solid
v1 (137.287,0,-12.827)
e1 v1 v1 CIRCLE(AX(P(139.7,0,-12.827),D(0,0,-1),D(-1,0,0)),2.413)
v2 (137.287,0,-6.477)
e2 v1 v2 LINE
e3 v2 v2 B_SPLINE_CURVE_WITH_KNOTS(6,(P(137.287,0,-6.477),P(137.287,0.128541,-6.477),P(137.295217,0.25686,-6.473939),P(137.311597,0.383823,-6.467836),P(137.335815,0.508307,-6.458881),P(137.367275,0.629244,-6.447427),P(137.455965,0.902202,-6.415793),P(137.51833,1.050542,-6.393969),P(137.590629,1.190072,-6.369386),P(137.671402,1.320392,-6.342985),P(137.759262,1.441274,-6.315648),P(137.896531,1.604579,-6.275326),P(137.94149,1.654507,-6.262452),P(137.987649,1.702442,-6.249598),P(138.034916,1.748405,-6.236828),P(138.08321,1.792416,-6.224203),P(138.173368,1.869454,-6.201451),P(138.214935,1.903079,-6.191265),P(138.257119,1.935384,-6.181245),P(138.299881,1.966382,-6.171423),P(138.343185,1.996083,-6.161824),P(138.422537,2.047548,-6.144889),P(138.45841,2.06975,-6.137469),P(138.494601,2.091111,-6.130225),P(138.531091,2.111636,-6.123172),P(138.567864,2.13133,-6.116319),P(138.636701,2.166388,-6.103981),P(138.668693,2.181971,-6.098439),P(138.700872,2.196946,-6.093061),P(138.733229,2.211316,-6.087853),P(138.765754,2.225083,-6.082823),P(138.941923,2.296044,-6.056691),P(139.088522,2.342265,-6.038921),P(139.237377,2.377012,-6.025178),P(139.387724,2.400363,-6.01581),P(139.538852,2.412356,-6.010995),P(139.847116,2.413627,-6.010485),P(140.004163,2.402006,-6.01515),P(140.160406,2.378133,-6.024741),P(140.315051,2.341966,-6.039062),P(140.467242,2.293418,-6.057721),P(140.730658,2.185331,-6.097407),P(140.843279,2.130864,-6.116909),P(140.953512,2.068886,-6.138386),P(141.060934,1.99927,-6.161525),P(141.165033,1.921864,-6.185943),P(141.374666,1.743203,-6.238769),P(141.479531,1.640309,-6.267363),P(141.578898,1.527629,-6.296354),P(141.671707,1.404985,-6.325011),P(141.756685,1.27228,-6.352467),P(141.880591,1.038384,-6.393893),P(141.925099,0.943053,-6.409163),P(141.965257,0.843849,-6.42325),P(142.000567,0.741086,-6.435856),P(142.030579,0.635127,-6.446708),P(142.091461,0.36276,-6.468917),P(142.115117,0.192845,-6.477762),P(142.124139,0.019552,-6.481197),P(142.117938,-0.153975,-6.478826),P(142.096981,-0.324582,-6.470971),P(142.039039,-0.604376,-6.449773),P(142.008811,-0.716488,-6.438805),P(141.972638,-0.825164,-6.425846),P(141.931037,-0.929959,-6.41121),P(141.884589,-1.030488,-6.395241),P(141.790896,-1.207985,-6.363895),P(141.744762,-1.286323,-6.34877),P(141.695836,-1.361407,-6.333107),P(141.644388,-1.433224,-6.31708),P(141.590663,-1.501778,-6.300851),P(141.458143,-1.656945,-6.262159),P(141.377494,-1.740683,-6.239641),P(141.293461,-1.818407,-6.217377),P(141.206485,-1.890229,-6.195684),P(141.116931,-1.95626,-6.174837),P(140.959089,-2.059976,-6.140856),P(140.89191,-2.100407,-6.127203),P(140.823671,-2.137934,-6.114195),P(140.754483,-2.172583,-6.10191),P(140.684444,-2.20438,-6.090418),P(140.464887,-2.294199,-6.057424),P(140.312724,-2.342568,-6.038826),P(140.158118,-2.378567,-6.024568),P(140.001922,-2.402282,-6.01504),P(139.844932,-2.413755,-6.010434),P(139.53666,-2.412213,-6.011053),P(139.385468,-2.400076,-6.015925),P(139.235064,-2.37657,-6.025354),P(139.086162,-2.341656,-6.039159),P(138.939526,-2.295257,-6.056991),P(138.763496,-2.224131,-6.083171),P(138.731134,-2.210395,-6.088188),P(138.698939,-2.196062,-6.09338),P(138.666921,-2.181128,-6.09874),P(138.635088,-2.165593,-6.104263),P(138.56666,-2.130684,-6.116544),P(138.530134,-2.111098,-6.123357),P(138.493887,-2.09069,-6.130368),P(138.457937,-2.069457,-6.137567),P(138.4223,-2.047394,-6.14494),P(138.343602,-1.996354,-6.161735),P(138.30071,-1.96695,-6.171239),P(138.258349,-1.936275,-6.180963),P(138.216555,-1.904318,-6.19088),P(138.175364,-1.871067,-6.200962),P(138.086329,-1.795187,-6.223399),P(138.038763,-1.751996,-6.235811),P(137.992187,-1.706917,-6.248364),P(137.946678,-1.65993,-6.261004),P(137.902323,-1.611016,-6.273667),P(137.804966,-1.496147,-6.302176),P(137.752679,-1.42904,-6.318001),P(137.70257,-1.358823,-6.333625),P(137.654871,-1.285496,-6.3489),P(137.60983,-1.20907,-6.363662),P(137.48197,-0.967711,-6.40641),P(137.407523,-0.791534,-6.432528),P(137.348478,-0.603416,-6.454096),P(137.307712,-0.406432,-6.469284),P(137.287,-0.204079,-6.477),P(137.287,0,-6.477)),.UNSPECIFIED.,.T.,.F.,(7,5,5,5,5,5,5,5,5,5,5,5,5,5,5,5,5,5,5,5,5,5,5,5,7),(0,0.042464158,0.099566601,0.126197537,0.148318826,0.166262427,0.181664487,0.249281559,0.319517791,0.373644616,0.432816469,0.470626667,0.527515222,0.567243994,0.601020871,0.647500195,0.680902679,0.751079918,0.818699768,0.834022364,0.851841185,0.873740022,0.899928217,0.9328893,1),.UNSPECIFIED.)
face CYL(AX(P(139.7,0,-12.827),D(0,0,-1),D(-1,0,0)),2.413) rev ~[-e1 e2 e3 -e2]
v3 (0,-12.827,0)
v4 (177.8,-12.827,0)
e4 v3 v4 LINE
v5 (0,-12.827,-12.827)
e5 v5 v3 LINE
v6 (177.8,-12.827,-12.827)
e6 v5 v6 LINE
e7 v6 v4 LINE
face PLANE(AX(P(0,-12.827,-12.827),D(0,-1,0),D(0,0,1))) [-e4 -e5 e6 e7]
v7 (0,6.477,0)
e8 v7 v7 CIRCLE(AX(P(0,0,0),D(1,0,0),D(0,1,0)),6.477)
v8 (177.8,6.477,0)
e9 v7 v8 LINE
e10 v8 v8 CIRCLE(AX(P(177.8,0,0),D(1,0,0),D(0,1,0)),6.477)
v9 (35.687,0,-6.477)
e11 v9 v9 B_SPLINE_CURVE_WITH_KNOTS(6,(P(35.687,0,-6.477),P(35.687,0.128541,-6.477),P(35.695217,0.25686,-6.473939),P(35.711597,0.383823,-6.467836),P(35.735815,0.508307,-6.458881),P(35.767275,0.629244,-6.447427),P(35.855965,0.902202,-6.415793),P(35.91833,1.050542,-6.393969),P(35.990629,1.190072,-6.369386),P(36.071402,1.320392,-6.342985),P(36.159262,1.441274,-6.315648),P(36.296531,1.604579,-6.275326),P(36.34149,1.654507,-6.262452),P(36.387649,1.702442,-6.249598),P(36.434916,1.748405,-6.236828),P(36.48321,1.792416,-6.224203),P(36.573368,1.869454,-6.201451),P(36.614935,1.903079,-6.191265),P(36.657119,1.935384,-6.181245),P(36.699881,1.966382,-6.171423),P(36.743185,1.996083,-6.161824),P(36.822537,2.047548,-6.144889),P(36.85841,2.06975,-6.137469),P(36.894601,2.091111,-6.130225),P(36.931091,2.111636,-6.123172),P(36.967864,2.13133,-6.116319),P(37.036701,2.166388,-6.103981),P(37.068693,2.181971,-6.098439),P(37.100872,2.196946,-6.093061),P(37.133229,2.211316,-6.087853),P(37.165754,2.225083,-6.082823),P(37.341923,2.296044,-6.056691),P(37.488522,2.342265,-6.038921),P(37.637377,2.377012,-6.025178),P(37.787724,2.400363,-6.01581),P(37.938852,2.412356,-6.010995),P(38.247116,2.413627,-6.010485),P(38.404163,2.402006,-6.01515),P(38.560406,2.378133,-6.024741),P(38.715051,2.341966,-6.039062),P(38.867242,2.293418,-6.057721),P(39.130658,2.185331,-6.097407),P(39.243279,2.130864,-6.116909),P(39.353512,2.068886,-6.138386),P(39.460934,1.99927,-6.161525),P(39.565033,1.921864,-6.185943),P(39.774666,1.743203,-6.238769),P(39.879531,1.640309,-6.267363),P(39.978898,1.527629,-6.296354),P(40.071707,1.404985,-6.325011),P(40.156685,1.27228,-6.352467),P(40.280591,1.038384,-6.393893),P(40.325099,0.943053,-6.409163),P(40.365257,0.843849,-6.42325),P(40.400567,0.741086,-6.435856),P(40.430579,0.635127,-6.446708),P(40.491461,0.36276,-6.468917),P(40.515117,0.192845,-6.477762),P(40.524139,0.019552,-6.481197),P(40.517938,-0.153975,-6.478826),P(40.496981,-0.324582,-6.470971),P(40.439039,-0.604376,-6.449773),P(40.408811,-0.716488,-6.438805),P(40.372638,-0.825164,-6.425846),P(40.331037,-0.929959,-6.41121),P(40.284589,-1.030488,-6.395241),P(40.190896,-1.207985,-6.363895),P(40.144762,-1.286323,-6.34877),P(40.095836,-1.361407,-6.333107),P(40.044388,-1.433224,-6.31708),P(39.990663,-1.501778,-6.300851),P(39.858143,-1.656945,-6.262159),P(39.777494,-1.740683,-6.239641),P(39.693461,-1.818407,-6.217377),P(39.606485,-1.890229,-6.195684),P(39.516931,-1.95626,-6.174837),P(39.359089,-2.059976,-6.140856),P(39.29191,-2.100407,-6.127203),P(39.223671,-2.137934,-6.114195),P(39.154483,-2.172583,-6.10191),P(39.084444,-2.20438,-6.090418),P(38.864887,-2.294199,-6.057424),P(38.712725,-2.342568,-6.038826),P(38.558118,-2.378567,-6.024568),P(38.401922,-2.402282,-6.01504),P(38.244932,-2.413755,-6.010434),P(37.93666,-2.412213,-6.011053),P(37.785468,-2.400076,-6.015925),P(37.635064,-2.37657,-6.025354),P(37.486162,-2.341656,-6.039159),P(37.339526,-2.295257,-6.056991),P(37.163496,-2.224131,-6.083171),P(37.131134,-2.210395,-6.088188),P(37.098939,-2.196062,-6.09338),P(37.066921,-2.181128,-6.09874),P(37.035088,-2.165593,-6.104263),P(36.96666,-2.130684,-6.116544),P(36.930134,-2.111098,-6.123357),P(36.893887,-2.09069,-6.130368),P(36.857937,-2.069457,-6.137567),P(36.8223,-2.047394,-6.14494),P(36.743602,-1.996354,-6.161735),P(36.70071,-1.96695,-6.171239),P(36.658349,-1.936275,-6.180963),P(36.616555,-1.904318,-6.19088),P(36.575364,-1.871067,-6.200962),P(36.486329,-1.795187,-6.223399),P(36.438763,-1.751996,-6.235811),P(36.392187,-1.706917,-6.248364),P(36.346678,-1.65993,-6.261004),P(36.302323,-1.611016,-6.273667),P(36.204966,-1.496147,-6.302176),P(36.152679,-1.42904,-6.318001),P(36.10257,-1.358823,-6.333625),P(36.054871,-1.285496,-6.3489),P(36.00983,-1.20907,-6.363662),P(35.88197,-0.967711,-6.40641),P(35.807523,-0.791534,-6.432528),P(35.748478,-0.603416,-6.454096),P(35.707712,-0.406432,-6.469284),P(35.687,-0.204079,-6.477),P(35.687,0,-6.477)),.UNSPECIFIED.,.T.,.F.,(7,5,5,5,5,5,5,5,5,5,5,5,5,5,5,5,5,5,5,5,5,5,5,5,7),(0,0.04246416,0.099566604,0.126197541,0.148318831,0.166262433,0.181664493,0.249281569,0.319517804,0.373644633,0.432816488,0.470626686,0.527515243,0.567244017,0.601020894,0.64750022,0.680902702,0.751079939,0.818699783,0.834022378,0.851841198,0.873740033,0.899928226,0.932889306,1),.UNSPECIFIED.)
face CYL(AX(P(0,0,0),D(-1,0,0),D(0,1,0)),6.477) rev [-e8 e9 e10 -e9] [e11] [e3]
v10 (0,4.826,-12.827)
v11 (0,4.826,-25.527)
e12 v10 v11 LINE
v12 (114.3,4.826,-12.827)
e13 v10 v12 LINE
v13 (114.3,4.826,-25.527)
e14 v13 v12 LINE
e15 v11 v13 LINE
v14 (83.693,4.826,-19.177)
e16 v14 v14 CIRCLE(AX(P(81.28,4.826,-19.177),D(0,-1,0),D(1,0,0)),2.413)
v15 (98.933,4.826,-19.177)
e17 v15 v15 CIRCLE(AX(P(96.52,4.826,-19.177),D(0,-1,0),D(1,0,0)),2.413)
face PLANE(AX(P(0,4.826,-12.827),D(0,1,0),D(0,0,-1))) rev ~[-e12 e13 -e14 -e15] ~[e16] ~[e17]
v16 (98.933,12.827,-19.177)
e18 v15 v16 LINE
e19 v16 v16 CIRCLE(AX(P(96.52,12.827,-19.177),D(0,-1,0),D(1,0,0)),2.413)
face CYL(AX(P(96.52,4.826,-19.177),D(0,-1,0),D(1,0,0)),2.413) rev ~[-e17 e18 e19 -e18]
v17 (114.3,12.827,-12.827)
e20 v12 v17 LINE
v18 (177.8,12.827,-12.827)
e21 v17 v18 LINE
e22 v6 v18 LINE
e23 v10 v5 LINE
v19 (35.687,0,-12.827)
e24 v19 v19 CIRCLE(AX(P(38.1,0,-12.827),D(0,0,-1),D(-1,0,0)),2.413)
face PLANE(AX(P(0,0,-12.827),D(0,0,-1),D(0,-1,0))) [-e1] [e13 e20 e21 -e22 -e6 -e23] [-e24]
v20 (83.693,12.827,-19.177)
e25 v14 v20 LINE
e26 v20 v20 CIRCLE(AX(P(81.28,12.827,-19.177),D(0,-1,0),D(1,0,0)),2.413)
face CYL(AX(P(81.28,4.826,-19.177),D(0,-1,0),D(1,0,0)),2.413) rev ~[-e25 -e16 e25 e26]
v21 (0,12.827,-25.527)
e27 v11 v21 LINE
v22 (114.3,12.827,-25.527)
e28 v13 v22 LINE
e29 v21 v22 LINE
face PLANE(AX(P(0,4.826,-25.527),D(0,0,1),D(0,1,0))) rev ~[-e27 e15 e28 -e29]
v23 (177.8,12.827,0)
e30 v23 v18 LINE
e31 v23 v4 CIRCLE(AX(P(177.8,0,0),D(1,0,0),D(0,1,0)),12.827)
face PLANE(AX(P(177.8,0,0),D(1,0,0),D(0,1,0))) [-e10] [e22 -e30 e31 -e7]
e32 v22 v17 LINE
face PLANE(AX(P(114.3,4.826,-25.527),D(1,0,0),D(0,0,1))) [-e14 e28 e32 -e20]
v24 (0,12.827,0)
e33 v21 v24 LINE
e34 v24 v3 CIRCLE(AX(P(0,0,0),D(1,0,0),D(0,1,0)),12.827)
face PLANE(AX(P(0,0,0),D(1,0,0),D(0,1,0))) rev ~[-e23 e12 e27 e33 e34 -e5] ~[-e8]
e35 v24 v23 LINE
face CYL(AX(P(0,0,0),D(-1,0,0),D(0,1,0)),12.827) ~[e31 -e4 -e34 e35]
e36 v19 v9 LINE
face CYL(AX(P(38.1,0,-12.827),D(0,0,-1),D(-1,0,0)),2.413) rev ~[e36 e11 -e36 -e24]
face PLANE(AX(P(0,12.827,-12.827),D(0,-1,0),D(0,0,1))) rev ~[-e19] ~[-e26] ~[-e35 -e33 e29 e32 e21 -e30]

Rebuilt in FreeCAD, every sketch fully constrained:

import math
import FreeCAD as App
import Part
import Sketcher
Q = App.Units.Quantity

doc = App.newDocument("Part")
params = doc.addObject("Spreadsheet::Sheet", "Params")
for row, (alias, value) in enumerate([
    ("sketch1_diameter", "1.01 in"),
    ("sketch1_diameter2", "0.51 in"),
    ("pad1_length", "7 in"),
    ("sketch2_height", "0.5 in"),
    ("sketch2_width", "0.19 in"),
    ("sketch2_radius", "0.505 in"),
    ("pad2_length", "7 in"),
    ("sketch3_diameter", "0.19 in"),
    ("sketch4_diameter", "0.19 in"),
    ("pocket2_length", "0.5 in"),
    ("sketch5_width", "2.5 in"),
    ("sketch5_height", "0.5 in"),
    ("pocket3_length", "0.5 in"),
], start=1):
    params.set(f"A{row}", alias)
    params.set(f"B{row}", "=" + value)
    params.setAlias(f"B{row}", alias)

body = doc.addObject("PartDesign::Body", "Body")

# Sketch on YZ plane
sketch1 = body.newObject("Sketcher::SketchObject", "Sketch")
sketch1.AttachmentSupport = (doc.getObject("YZ_Plane"), [""])
sketch1.MapMode = "FlatFace"
sketch1.addGeometry(Part.Circle(App.Vector(0, 0, 0), App.Vector(0, 0, 1), 12.827), False)
sketch1.addGeometry(Part.Circle(App.Vector(0, 0, 0), App.Vector(0, 0, 1), 6.477), False)
sketch1.addConstraint(Sketcher.Constraint("Coincident", 0, 3, -1, 1))
sketch1.addConstraint(Sketcher.Constraint("Coincident", 1, 3, -1, 1))
sketch1.addConstraint(Sketcher.Constraint("Diameter", 0, Q("1.01 in")))
sketch1.addConstraint(Sketcher.Constraint("Diameter", 1, Q("0.51 in")))
sketch1.setExpression("Constraints[2]", "Params.sketch1_diameter")
sketch1.setExpression("Constraints[3]", "Params.sketch1_diameter2")
pad1 = body.newObject("PartDesign::Pad", "Pad")
pad1.Profile = sketch1
pad1.setExpression("Length", "Params.pad1_length")

# Sketch on YZ plane
sketch2 = body.newObject("Sketcher::SketchObject", "Sketch001")
sketch2.AttachmentSupport = (doc.getObject("YZ_Plane"), [""])
sketch2.MapMode = "FlatFace"
sketch2.addGeometry(Part.ArcOfCircle(Part.Circle(App.Vector(0, 0, 0), App.Vector(0, 0, 1), 12.827), math.radians(-90), math.radians(0)), False)
sketch2.addGeometry(Part.LineSegment(App.Vector(12.827, 0, 0), App.Vector(12.827, -25.527, 0)), False)
sketch2.addGeometry(Part.LineSegment(App.Vector(12.827, -25.527, 0), App.Vector(4.826, -25.527, 0)), False)
sketch2.addGeometry(Part.LineSegment(App.Vector(4.826, -25.527, 0), App.Vector(4.826, -12.827, 0)), False)
sketch2.addGeometry(Part.LineSegment(App.Vector(4.826, -12.827, 0), App.Vector(0, -12.827, 0)), False)
sketch2.addGeometry(Part.LineSegment(App.Vector(-12.827, -12.827, 0), App.Vector(-12.827, 0, 0)), False)
sketch2.addGeometry(Part.ArcOfCircle(Part.Circle(App.Vector(0, 0, 0), App.Vector(0, 0, 1), 12.827), math.radians(180), math.radians(270)), False)
sketch2.addGeometry(Part.LineSegment(App.Vector(0, -12.827, 0), App.Vector(-12.827, -12.827, 0)), False)
sketch2.addConstraint(Sketcher.Constraint("Tangent", 0, 2, 1, 1))
sketch2.addConstraint(Sketcher.Constraint("Coincident", 1, 2, 2, 1))
sketch2.addConstraint(Sketcher.Constraint("Coincident", 2, 2, 3, 1))
sketch2.addConstraint(Sketcher.Constraint("Coincident", 3, 2, 4, 1))
sketch2.addConstraint(Sketcher.Constraint("Tangent", 4, 2, 0, 1))
sketch2.addConstraint(Sketcher.Constraint("Tangent", 5, 2, 6, 1))
sketch2.addConstraint(Sketcher.Constraint("Tangent", 6, 2, 7, 1))
sketch2.addConstraint(Sketcher.Constraint("Coincident", 7, 2, 5, 1))
sketch2.addConstraint(Sketcher.Constraint("Vertical", 1))
sketch2.addConstraint(Sketcher.Constraint("Horizontal", 2))
sketch2.addConstraint(Sketcher.Constraint("Vertical", 3))
sketch2.addConstraint(Sketcher.Constraint("Horizontal", 4))
sketch2.addConstraint(Sketcher.Constraint("Vertical", 5))
sketch2.addConstraint(Sketcher.Constraint("Horizontal", 7))
sketch2.addConstraint(Sketcher.Constraint("Coincident", 0, 3, -1, 1))
sketch2.addConstraint(Sketcher.Constraint("Coincident", 6, 3, -1, 1))
sketch2.addConstraint(Sketcher.Constraint("Equal", 0, 6))
sketch2.addConstraint(Sketcher.Constraint("DistanceY", 3, 1, 3, 2, Q("0.5 in")))
sketch2.addConstraint(Sketcher.Constraint("DistanceX", 4, 2, 4, 1, Q("0.19 in")))
sketch2.addConstraint(Sketcher.Constraint("Radius", 0, Q("0.505 in")))
sketch2.setExpression("Constraints[17]", "Params.sketch2_height")
sketch2.setExpression("Constraints[18]", "Params.sketch2_width")
sketch2.setExpression("Constraints[19]", "Params.sketch2_radius")
pad2 = body.newObject("PartDesign::Pad", "Pad001")
pad2.Profile = sketch2
pad2.setExpression("Length", "Params.pad2_length")

# Sketch on XZ plane
sketch3 = body.newObject("Sketcher::SketchObject", "Sketch002")
sketch3.AttachmentSupport = (doc.getObject("XZ_Plane"), [""])
sketch3.MapMode = "FlatFace"
sketch3.AttachmentOffset = App.Placement(App.Vector(0, 0, -0.19 * 25.4), App.Rotation())
sketch3.addGeometry(Part.Circle(App.Vector(96.52, -19.177, 0), App.Vector(0, 0, 1), 2.413), False)
sketch3.addGeometry(Part.Circle(App.Vector(81.28, -19.177, 0), App.Vector(0, 0, 1), 2.413), False)
sketch3.addConstraint(Sketcher.Constraint("Equal", 0, 1))
sketch3.addConstraint(Sketcher.Constraint("Horizontal", 0, 3, 1, 3))
sketch3.addConstraint(Sketcher.Constraint("Diameter", 0, Q("0.19 in")))
sketch3.addConstraint(Sketcher.Constraint("DistanceX", -1, 1, 0, 3, Q("3.8 in")))
sketch3.addConstraint(Sketcher.Constraint("DistanceX", -1, 1, 1, 3, Q("3.2 in")))
sketch3.addConstraint(Sketcher.Constraint("DistanceY", 0, 3, -1, 1, Q("0.755 in")))
sketch3.setExpression("Constraints[2]", "Params.sketch3_diameter")
pocket1 = body.newObject("PartDesign::Pocket", "Pocket")
pocket1.Profile = sketch3
pocket1.Type = "ThroughAll"

# Sketch on XY plane
sketch4 = body.newObject("Sketcher::SketchObject", "Sketch003")
sketch4.AttachmentSupport = (doc.getObject("XY_Plane"), [""])
sketch4.MapMode = "FlatFace"
sketch4.AttachmentOffset = App.Placement(App.Vector(0, 0, -0.505 * 25.4), App.Rotation())
sketch4.addGeometry(Part.Circle(App.Vector(139.7, 0, 0), App.Vector(0, 0, 1), 2.413), False)
sketch4.addGeometry(Part.Circle(App.Vector(38.1, 0, 0), App.Vector(0, 0, 1), 2.413), False)
sketch4.addConstraint(Sketcher.Constraint("Equal", 0, 1))
sketch4.addConstraint(Sketcher.Constraint("PointOnObject", 0, 3, -1))
sketch4.addConstraint(Sketcher.Constraint("PointOnObject", 1, 3, -1))
sketch4.addConstraint(Sketcher.Constraint("Diameter", 0, Q("0.19 in")))
sketch4.addConstraint(Sketcher.Constraint("DistanceX", 1, 3, 0, 3, Q("4 in")))
sketch4.addConstraint(Sketcher.Constraint("DistanceX", -1, 1, 0, 3, Q("5.5 in")))
sketch4.setExpression("Constraints[3]", "Params.sketch4_diameter")
pocket2 = body.newObject("PartDesign::Pocket", "Pocket001")
pocket2.Profile = sketch4
pocket2.setExpression("Length", "Params.pocket2_length")
pocket2.Reversed = True

# Sketch on XZ plane
sketch5 = body.newObject("Sketcher::SketchObject", "Sketch004")
sketch5.AttachmentSupport = (doc.getObject("XZ_Plane"), [""])
sketch5.MapMode = "FlatFace"
sketch5.AttachmentOffset = App.Placement(App.Vector(0, 0, -0.19 * 25.4), App.Rotation())
sketch5.addGeometry(Part.LineSegment(App.Vector(177.8, -12.827, 0), App.Vector(114.3, -12.827, 0)), False)
sketch5.addGeometry(Part.LineSegment(App.Vector(114.3, -12.827, 0), App.Vector(114.3, -25.527, 0)), False)
sketch5.addGeometry(Part.LineSegment(App.Vector(114.3, -25.527, 0), App.Vector(177.8, -25.527, 0)), False)
sketch5.addGeometry(Part.LineSegment(App.Vector(177.8, -25.527, 0), App.Vector(177.8, -12.827, 0)), False)
sketch5.addConstraint(Sketcher.Constraint("Coincident", 0, 2, 1, 1))
sketch5.addConstraint(Sketcher.Constraint("Coincident", 1, 2, 2, 1))
sketch5.addConstraint(Sketcher.Constraint("Coincident", 2, 2, 3, 1))
sketch5.addConstraint(Sketcher.Constraint("Coincident", 3, 2, 0, 1))
sketch5.addConstraint(Sketcher.Constraint("Horizontal", 0))
sketch5.addConstraint(Sketcher.Constraint("Vertical", 1))
sketch5.addConstraint(Sketcher.Constraint("Horizontal", 2))
sketch5.addConstraint(Sketcher.Constraint("Vertical", 3))
sketch5.addConstraint(Sketcher.Constraint("DistanceX", 0, 2, 0, 1, Q("2.5 in")))
sketch5.addConstraint(Sketcher.Constraint("DistanceY", 1, 2, 1, 1, Q("0.5 in")))
sketch5.addConstraint(Sketcher.Constraint("DistanceX", -1, 1, 2, 2, Q("7 in")))
sketch5.addConstraint(Sketcher.Constraint("DistanceY", 0, 2, -1, 1, Q("0.505 in")))
sketch5.setExpression("Constraints[8]", "Params.sketch5_width")
sketch5.setExpression("Constraints[9]", "Params.sketch5_height")
pocket3 = body.newObject("PartDesign::Pocket", "Pocket002")
pocket3.Profile = sketch5
pocket3.setExpression("Length", "Params.pocket3_length")

doc.recompute()
